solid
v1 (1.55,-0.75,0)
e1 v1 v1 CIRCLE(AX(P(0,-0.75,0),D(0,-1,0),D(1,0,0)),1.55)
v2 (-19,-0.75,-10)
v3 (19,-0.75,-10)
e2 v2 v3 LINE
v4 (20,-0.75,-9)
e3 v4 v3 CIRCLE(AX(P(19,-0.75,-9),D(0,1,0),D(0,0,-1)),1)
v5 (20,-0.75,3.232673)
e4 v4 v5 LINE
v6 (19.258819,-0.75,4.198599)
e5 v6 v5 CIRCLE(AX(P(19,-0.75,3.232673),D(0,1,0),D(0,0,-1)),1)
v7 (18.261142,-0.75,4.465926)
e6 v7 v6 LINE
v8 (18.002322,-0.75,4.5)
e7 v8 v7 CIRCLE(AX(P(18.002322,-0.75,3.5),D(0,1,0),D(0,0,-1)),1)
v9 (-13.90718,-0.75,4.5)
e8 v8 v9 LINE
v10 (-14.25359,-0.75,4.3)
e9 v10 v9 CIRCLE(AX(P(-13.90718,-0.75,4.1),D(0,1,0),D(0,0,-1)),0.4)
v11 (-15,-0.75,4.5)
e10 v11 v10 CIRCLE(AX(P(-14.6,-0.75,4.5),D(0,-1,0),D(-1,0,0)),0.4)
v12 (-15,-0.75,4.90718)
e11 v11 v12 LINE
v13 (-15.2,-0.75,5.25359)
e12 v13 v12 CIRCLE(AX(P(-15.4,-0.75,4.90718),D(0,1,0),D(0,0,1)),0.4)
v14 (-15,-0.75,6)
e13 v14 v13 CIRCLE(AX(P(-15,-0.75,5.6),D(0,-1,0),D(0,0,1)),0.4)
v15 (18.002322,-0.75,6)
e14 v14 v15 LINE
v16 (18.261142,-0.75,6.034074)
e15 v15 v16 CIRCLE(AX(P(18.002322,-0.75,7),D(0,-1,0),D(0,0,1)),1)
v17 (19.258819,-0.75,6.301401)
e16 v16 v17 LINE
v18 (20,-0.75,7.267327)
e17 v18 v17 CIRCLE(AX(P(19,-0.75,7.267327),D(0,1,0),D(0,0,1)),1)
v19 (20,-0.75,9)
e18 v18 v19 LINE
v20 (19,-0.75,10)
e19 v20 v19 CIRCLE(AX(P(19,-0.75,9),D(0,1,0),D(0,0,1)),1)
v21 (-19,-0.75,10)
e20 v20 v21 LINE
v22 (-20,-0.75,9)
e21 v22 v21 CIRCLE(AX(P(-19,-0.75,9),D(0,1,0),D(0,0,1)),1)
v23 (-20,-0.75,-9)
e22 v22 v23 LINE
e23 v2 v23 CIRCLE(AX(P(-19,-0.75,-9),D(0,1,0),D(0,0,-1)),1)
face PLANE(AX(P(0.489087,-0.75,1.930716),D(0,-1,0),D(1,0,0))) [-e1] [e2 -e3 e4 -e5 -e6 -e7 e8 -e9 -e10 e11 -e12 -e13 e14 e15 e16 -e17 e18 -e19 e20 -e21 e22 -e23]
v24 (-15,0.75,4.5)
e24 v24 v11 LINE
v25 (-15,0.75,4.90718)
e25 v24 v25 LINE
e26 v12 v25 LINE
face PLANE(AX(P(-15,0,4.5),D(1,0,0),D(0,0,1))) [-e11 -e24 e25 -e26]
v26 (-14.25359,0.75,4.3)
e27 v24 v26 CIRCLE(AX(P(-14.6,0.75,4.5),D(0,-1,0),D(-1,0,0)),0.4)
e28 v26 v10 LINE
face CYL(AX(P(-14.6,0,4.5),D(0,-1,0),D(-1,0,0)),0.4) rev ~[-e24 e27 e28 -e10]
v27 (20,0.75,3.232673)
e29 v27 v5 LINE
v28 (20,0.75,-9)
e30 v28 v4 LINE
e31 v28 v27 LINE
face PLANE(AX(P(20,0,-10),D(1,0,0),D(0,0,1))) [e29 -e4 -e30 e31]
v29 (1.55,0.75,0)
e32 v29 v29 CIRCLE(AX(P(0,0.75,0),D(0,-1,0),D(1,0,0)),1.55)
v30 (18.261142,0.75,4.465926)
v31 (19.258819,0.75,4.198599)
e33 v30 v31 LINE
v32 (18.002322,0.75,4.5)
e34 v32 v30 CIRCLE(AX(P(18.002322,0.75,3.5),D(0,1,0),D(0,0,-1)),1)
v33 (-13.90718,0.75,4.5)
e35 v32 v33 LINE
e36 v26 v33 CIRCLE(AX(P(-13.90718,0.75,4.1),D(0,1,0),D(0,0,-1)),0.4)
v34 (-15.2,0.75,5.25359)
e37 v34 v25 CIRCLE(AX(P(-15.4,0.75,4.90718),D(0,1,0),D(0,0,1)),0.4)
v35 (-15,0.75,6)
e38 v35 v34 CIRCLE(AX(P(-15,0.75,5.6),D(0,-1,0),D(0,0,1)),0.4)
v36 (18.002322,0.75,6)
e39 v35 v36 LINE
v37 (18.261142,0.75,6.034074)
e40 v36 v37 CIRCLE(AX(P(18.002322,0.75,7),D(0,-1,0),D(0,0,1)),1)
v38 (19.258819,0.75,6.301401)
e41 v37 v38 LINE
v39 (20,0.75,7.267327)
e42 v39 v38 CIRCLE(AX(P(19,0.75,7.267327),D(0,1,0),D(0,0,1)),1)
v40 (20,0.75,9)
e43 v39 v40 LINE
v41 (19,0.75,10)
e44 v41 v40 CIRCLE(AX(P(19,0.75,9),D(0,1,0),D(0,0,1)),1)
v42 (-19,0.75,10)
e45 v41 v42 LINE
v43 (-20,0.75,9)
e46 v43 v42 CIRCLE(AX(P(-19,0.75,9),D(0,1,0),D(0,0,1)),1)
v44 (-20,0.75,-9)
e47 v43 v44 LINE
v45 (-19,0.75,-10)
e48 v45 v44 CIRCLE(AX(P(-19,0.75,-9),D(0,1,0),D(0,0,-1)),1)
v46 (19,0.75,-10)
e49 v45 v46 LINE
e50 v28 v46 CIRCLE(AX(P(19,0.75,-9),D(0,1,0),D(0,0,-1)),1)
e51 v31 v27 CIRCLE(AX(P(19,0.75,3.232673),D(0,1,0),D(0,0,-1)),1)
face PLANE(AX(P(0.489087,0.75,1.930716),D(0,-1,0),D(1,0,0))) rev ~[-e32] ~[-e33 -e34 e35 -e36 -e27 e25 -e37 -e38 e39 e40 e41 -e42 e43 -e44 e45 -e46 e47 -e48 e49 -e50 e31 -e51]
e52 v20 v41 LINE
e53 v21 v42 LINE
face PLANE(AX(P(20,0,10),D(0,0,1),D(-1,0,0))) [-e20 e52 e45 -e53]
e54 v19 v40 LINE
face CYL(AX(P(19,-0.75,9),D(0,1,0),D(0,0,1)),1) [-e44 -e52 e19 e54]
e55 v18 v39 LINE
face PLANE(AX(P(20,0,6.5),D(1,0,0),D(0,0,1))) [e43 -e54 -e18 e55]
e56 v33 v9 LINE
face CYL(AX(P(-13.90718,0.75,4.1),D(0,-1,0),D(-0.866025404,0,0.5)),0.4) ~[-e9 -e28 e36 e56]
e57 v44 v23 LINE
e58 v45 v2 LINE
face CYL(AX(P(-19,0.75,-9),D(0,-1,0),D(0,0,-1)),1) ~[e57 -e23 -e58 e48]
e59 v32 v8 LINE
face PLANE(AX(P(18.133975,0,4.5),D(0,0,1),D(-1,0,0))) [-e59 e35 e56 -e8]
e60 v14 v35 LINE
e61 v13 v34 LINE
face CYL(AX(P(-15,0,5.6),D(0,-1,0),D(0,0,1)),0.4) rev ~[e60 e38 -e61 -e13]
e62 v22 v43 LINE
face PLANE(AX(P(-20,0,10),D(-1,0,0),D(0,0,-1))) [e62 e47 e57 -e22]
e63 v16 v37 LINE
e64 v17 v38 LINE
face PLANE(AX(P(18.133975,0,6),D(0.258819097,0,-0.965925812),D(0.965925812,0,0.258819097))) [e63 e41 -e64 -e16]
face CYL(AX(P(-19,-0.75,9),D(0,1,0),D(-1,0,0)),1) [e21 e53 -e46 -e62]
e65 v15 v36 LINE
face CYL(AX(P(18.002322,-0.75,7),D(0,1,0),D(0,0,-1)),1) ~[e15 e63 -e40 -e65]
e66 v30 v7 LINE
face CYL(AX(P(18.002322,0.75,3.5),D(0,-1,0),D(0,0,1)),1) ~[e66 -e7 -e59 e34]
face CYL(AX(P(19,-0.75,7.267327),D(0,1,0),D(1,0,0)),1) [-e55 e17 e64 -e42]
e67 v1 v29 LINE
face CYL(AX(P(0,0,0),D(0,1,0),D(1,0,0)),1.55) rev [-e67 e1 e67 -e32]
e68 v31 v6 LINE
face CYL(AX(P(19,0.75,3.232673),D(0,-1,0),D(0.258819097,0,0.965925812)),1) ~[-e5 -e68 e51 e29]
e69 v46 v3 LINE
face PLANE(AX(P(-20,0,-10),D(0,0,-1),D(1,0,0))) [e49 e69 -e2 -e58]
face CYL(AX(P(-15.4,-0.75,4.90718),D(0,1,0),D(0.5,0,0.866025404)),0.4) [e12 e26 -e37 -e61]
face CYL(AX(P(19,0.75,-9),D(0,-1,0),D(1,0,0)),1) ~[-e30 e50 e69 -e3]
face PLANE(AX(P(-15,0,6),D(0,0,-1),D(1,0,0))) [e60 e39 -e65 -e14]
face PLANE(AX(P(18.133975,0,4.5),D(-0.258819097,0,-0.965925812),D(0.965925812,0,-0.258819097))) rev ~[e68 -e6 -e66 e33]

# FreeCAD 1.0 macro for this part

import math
import FreeCAD as App
import Part
import Sketcher
Q = App.Units.Quantity


def edges_at(feature, points):
    """Names of the edges that pass closest to the given points."""
    edges = feature.Shape.Edges
    near = lambda p: min(range(len(edges)), key=lambda i: edges[i].distToShape(Part.Vertex(*p))[0])
    return sorted({f"Edge{near(p) + 1}" for p in points})

doc = App.newDocument("Part")
body = doc.addObject("PartDesign::Body", "Body")

sketch1 = doc.addObject("Sketcher::SketchObject", "Sketch")
body.addObject(sketch1)
sketch1.AttachmentSupport = (doc.XZ_Plane, [""])
sketch1.MapMode = "FlatFace"
sketch1.addGeometry([
    Part.LineSegment(App.Vector(-20, 10, 0), App.Vector(-20, -10, 0)),
    Part.LineSegment(App.Vector(-20, -10, 0), App.Vector(20, -10, 0)),
    Part.LineSegment(App.Vector(20, -10, 0), App.Vector(20, 4, 0)),
    Part.LineSegment(App.Vector(20, 4, 0), App.Vector(18.13, 4.5, 0)),
    Part.LineSegment(App.Vector(18.13, 4.5, 0), App.Vector(-14.2, 4.5, 0)),
    Part.ArcOfCircle(Part.Circle(App.Vector(-14.6, 4.5, 0), App.Vector(0, 0, 1), 0.4), math.radians(180), math.radians(360)),
    Part.LineSegment(App.Vector(-15, 4.5, 0), App.Vector(-15, 5.2, 0)),
    Part.ArcOfCircle(Part.Circle(App.Vector(-15, 5.6, 0), App.Vector(0, 0, 1), 0.4), math.radians(90), math.radians(270)),
    Part.LineSegment(App.Vector(-15, 6, 0), App.Vector(18.13, 6, 0)),
    Part.LineSegment(App.Vector(18.13, 6, 0), App.Vector(20, 6.5, 0)),
    Part.LineSegment(App.Vector(20, 6.5, 0), App.Vector(20, 10, 0)),
    Part.LineSegment(App.Vector(20, 10, 0), App.Vector(-20, 10, 0)),
    Part.Circle(App.Vector(0, 0, 0), App.Vector(0, 0, 1), 1.55),
], False)
sketch1.addConstraint([
    Sketcher.Constraint("Coincident", 0, 2, 1, 1),
    Sketcher.Constraint("Coincident", 1, 2, 2, 1),
    Sketcher.Constraint("Coincident", 2, 2, 3, 1),
    Sketcher.Constraint("Coincident", 3, 2, 4, 1),
    Sketcher.Constraint("Coincident", 4, 2, 5, 2),
    Sketcher.Constraint("Tangent", 5, 1, 6, 1),
    Sketcher.Constraint("Coincident", 6, 2, 7, 2),
    Sketcher.Constraint("Tangent", 7, 1, 8, 1),
    Sketcher.Constraint("Coincident", 8, 2, 9, 1),
    Sketcher.Constraint("Coincident", 9, 2, 10, 1),
    Sketcher.Constraint("Coincident", 10, 2, 11, 1),
    Sketcher.Constraint("Coincident", 11, 2, 0, 1),
    Sketcher.Constraint("Vertical", 0),
    Sketcher.Constraint("Horizontal", 1),
    Sketcher.Constraint("Vertical", 2),
    Sketcher.Constraint("Horizontal", 4),
    Sketcher.Constraint("Vertical", 6),
    Sketcher.Constraint("Horizontal", 8),
    Sketcher.Constraint("Vertical", 10),
    Sketcher.Constraint("Horizontal", 11),
    Sketcher.Constraint("Coincident", 12, 3, -1, 1),
    Sketcher.Constraint("Equal", 5, 7),
    Sketcher.Constraint("Symmetric", 0, 2, 10, 2, -1, 1),
    Sketcher.Constraint("Horizontal", 5, 3, 3, 2),
    Sketcher.Constraint("Vertical", 7, 3, 5, 1),
    Sketcher.Constraint("Vertical", 3, 2, 8, 2),
    Sketcher.Constraint("Vertical", 2, 2, 9, 2),
    Sketcher.Constraint("Equal", 3, 9),
    Sketcher.Constraint("Diameter", 12, Q("3.1 mm")),
    Sketcher.Constraint("Radius", 5, Q("0.4 mm")),
    Sketcher.Constraint("DistanceX", 1, 1, 1, 2, Q("40 mm")),
    Sketcher.Constraint("DistanceY", 0, 2, 0, 1, Q("20 mm")),
    Sketcher.Constraint("DistanceY", 2, 1, 2, 2, Q("14 mm")),
    Sketcher.Constraint("Angle", 3, Q("164.999997 deg")),
    Sketcher.Constraint("DistanceY", 6, 1, 6, 2, Q("0.7 mm")),
    Sketcher.Constraint("DistanceY", 10, 1, 10, 2, Q("3.5 mm")),
    Sketcher.Constraint("DistanceX", 7, 3, -1, 1, Q("15 mm")),
])
pad1 = doc.addObject("PartDesign::Pad", "Pad")
body.addObject(pad1)
pad1.Profile = sketch1
pad1.Length = 1.5
pad1.Midplane = True
doc.recompute()

fillet = doc.addObject("PartDesign::Fillet", "Fillet")
body.addObject(fillet)
fillet.Base = (pad1, edges_at(pad1, [(-15, 0, 5.2), (-14.2, 0, 4.5)]))
fillet.Radius = 0.4
doc.recompute()

fillet2 = doc.addObject("PartDesign::Fillet", "Fillet001")
body.addObject(fillet2)
fillet2.Base = (fillet, edges_at(fillet, [
    (18.134, 0, 4.5),
    (18.134, 0, 6),
    (20, 0, 6.5),
    (20, 0, 10),
    (20, 0, 4),
    (20, 0, -10),
    (-20, 0, -10),
    (-20, 0, 10),
]))
fillet2.Radius = 1

doc.recompute()
